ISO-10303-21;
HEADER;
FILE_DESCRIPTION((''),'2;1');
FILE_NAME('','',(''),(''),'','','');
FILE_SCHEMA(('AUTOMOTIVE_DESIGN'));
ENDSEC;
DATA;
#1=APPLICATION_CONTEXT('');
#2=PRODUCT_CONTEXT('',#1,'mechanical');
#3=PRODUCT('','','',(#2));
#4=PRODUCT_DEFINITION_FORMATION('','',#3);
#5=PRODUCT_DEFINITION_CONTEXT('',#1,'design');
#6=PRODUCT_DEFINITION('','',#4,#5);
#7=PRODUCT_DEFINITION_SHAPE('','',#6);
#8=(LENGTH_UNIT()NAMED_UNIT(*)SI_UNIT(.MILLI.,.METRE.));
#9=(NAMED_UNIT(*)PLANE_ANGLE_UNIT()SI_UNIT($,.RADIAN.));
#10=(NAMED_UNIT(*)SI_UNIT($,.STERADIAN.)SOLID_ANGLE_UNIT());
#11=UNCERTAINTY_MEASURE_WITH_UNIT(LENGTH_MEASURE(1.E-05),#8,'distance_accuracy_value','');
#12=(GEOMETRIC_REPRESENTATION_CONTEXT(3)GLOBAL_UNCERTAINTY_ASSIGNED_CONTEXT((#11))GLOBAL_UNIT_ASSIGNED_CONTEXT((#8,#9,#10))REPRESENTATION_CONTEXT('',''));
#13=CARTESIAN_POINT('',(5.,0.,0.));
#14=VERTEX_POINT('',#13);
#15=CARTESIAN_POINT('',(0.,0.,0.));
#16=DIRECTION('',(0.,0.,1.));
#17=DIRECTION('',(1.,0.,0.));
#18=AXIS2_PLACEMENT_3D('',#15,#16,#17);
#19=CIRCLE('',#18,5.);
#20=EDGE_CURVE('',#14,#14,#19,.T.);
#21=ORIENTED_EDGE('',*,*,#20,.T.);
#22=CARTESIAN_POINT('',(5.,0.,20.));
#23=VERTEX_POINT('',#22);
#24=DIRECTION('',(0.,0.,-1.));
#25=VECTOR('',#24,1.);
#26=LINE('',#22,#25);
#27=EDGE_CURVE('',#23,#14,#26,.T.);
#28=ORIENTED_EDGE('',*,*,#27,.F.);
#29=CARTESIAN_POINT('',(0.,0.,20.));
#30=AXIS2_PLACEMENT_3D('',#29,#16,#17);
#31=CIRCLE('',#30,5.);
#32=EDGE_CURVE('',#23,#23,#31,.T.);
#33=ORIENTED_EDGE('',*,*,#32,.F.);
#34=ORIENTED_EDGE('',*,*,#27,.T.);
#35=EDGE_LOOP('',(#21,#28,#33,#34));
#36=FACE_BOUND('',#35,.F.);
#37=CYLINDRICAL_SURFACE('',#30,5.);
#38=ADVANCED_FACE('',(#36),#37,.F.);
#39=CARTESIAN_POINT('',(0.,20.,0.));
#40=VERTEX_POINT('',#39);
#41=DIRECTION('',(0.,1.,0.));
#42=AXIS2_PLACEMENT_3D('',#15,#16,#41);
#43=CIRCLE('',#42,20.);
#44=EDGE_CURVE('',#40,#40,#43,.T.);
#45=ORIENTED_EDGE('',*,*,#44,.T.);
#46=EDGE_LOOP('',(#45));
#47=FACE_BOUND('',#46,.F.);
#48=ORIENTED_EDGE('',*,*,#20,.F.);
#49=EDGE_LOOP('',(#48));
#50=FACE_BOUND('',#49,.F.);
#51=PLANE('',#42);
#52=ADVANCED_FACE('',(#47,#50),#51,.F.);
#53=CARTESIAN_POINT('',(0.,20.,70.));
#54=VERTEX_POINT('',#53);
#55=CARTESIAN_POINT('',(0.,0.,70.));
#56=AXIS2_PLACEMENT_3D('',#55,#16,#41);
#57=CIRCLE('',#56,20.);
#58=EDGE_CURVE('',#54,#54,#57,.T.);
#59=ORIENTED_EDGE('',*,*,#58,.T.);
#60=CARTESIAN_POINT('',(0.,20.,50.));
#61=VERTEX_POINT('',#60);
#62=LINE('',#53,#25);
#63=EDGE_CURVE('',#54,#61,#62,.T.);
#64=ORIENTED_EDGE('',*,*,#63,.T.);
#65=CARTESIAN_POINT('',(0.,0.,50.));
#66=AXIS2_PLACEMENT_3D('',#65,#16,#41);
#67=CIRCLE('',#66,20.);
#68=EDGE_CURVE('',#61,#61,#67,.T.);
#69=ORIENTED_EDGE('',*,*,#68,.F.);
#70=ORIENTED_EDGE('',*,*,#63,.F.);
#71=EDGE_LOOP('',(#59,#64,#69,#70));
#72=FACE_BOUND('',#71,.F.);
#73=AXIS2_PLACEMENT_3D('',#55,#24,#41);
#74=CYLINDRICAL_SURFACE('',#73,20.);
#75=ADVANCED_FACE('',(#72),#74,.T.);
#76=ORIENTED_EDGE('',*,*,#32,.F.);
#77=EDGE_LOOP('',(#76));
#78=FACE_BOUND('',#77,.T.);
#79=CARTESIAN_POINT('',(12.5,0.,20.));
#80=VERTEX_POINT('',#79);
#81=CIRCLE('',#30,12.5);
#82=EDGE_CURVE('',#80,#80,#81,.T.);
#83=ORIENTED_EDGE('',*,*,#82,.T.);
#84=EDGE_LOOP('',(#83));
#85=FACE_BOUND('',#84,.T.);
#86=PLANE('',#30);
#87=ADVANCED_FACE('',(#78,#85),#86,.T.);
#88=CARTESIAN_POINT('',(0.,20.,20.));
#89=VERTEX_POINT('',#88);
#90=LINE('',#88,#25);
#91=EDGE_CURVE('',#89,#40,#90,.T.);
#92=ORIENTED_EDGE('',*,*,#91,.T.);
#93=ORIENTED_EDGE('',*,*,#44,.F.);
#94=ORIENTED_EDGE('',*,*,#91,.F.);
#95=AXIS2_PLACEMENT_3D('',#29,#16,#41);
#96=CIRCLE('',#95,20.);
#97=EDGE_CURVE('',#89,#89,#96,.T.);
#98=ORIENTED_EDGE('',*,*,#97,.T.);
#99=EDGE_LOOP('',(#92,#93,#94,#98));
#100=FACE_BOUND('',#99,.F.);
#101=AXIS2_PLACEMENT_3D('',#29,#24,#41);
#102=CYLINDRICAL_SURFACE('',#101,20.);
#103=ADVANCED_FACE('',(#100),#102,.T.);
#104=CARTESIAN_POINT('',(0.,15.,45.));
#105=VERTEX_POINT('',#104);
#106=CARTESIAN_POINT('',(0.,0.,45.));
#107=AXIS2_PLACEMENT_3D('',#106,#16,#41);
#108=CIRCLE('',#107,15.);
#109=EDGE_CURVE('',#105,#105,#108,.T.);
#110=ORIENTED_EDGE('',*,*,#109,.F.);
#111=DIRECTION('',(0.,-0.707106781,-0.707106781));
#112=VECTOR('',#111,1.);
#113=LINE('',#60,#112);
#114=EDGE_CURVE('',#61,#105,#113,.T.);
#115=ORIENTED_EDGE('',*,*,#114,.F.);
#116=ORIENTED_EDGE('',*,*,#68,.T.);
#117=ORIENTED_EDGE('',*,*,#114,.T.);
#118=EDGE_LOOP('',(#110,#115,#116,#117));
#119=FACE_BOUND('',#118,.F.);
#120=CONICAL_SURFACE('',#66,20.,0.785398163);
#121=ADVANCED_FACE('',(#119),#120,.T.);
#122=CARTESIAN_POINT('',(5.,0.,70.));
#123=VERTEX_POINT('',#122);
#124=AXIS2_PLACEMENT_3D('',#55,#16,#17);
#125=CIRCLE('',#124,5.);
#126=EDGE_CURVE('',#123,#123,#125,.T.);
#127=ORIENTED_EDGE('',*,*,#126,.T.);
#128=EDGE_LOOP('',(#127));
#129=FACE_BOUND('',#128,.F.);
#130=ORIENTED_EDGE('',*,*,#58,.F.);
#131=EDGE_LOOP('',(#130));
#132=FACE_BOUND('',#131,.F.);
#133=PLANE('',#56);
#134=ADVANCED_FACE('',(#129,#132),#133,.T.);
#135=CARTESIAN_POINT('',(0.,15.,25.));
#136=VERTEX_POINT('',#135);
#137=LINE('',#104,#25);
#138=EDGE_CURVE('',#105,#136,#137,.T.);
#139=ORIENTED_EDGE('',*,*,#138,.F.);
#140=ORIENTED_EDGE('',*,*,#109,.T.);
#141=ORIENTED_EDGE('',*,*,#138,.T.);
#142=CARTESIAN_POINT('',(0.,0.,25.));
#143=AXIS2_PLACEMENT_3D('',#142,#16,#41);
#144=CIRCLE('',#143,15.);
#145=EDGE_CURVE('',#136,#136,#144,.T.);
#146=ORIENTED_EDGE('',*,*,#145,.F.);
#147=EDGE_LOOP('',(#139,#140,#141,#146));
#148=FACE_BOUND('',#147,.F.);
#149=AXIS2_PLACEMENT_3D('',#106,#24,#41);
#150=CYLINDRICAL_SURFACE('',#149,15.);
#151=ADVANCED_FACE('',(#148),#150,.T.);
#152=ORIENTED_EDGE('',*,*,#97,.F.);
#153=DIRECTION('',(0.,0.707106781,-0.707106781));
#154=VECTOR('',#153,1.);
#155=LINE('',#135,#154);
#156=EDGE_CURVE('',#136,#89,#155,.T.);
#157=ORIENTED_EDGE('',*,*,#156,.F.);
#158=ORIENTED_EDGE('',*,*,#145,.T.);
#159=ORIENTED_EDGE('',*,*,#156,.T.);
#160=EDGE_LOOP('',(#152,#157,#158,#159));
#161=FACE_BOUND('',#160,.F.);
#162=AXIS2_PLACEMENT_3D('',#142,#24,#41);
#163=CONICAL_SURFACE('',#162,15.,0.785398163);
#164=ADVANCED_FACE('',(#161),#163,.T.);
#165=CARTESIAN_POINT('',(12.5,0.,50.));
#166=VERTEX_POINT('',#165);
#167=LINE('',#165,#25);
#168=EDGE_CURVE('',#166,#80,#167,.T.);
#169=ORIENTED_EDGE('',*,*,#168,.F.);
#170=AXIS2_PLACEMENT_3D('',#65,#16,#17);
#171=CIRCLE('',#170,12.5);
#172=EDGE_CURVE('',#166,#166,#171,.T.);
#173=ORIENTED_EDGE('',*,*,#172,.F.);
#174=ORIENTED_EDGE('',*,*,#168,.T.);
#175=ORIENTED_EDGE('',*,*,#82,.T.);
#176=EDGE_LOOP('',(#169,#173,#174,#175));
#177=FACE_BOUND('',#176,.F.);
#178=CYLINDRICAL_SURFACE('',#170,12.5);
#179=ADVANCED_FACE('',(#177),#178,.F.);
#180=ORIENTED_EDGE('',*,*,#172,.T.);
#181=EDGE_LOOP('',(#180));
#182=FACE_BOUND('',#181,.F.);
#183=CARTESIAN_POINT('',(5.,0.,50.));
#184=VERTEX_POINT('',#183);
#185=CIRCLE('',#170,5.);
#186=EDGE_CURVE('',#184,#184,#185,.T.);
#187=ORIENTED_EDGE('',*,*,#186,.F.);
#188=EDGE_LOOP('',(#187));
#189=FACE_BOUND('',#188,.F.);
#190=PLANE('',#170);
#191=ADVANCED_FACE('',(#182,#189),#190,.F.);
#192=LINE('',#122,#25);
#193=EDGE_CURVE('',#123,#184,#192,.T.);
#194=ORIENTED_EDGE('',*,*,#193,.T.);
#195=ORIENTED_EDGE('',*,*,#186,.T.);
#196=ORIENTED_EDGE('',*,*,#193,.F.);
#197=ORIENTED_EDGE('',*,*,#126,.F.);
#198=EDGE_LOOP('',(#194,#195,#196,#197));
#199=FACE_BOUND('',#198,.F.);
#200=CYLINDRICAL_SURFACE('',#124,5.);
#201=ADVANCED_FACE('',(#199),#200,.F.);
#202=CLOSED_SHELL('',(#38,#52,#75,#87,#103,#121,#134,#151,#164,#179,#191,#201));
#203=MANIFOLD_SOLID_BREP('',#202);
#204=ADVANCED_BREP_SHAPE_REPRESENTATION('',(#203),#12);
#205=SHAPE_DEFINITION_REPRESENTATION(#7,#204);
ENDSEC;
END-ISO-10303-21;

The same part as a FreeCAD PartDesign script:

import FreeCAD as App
import Part
import Sketcher
from FreeCAD import Vector
Q = App.Units.Quantity


def add_polygon(sketch, points):
    """Adds a closed chain of lines whose ends are joined by coincident constraints."""
    first, n = sketch.GeometryCount, len(points)
    for a, b in zip(points, points[1:] + points[:1]):
        sketch.addGeometry(Part.LineSegment(App.Vector(*a, 0), App.Vector(*b, 0)), False)
    for i in range(n):
        sketch.addConstraint(Sketcher.Constraint("Coincident", first + i, 2, first + (i + 1) % n, 1))

doc = App.newDocument("Part")
body = doc.addObject("PartDesign::Body", "Body")

sketch1 = body.newObject("Sketcher::SketchObject", "Sketch")
sketch1.AttachmentSupport = (doc.getObject("YZ_Plane"), [""])
sketch1.MapMode = "FlatFace"
add_polygon(sketch1, [(0, 70), (0, 0), (20, 0), (20, 20), (15, 25), (15, 45), (20, 50), (20, 70)])
sketch1.addConstraint([
    Sketcher.Constraint("Vertical", 0),
    Sketcher.Constraint("Horizontal", 1),
    Sketcher.Constraint("Vertical", 2),
    Sketcher.Constraint("Vertical", 4),
    Sketcher.Constraint("Vertical", 6),
    Sketcher.Constraint("Horizontal", 7),
    Sketcher.Constraint("Coincident", 0, 2, -1, 1),
    Sketcher.Constraint("Perpendicular", 3, 5),
    Sketcher.Constraint("Vertical", 2, 2, 5, 2),
    Sketcher.Constraint("Equal", 7, 2),
    Sketcher.Constraint("Equal", 2, 4),
    Sketcher.Constraint("Equal", 4, 6),
    Sketcher.Constraint("Equal", 3, 5),
    Sketcher.Constraint("DistanceX", 1, 1, 1, 2, Q("20 mm")),
    Sketcher.Constraint("DistanceY", 0, 2, 0, 1, Q("70 mm")),
])
revolution = body.newObject("PartDesign::Revolution", "Revolution")
revolution.Profile = sketch1
revolution.ReferenceAxis = (sketch1, ["V_Axis"])
revolution.Angle = 360

sketch2 = body.newObject("Sketcher::SketchObject", "Sketch001")
sketch2.AttachmentSupport = (doc.getObject("XY_Plane"), [""])
sketch2.MapMode = "FlatFace"
sketch2.AttachmentOffset = App.Placement(Vector(0, 0, 70), App.Rotation())
sketch2.addGeometry(Part.Circle(Vector(0, 0, 0), Vector(0, 0, 1), 5), False)
sketch2.addConstraint([
    Sketcher.Constraint("Coincident", 0, 3, -1, 1),
    Sketcher.Constraint("Diameter", 0, Q("10 mm")),
])
pocket1 = body.newObject("PartDesign::Pocket", "Pocket")
pocket1.Profile = sketch2
pocket1.Length = 20

sketch3 = body.newObject("Sketcher::SketchObject", "Sketch002")
sketch3.AttachmentSupport = (doc.getObject("XY_Plane"), [""])
sketch3.MapMode = "FlatFace"
sketch3.AttachmentOffset = App.Placement(Vector(0, 0, 50), App.Rotation())
sketch3.addGeometry(Part.Circle(Vector(0, 0, 0), Vector(0, 0, 1), 12.5), False)
sketch3.addConstraint([
    Sketcher.Constraint("Coincident", 0, 3, -1, 1),
    Sketcher.Constraint("Diameter", 0, Q("25 mm")),
])
pocket2 = body.newObject("PartDesign::Pocket", "Pocket001")
pocket2.Profile = sketch3
pocket2.Length = 30

sketch4 = body.newObject("Sketcher::SketchObject", "Sketch003")
sketch4.AttachmentSupport = (doc.getObject("XY_Plane"), [""])
sketch4.MapMode = "FlatFace"
sketch4.AttachmentOffset = App.Placement(Vector(0, 0, 20), App.Rotation())
sketch4.addGeometry(Part.Circle(Vector(0, 0, 0), Vector(0, 0, 1), 5), False)
sketch4.addConstraint([
    Sketcher.Constraint("Coincident", 0, 3, -1, 1),
    Sketcher.Constraint("Diameter", 0, Q("10 mm")),
])
pocket3 = body.newObject("PartDesign::Pocket", "Pocket002")
pocket3.Profile = sketch4
pocket3.Type = "UpToFirst"

doc.recompute()
